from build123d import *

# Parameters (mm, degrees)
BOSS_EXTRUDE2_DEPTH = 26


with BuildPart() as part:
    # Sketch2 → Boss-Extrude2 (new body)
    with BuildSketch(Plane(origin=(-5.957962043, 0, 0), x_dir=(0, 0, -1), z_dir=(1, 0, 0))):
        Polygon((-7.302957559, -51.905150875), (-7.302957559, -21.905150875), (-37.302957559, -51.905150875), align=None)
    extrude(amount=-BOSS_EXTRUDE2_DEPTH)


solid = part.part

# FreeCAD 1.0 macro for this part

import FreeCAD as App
import Part
import Sketcher

V = App.Vector
Q = App.Units.Quantity


def add_polygon(sketch, points):
    """Adds a closed chain of lines whose ends are joined by coincident constraints."""
    first, n = sketch.GeometryCount, len(points)
    for a, b in zip(points, points[1:] + points[:1]):
        sketch.addGeometry(Part.LineSegment(App.Vector(*a, 0), App.Vector(*b, 0)), False)
    for i in range(n):
        sketch.addConstraint(Sketcher.Constraint("Coincident", first + i, 2, first + (i + 1) % n, 1))

doc = App.newDocument("Part")
body = doc.addObject("PartDesign::Body", "Body")

# Sketch on YZ plane
sketch1 = body.newObject("Sketcher::SketchObject", "Sketch")
sketch1.AttachmentSupport = (doc.getObject("YZ_Plane"), [""])
sketch1.MapMode = "FlatFace"
sketch1.AttachmentOffset = App.Placement(V(0, 0, -5.957962), App.Rotation())
add_polygon(sketch1, [(-52, 7), (-22, 7), (-52, 37)])  # lines 0-2
sketch1.addConstraint(Sketcher.Constraint("Horizontal", 0))
sketch1.addConstraint(Sketcher.Constraint("Vertical", 2))
sketch1.addConstraint(Sketcher.Constraint("Equal", 0, 2))
sketch1.addConstraint(Sketcher.Constraint("DistanceX", 0, 1, 0, 2, Q("30 mm")))
sketch1.addConstraint(Sketcher.Constraint("DistanceX", 0, 2, -1, 1, Q("21.905151 mm")))
sketch1.addConstraint(Sketcher.Constraint("DistanceY", -1, 1, 0, 2, Q("7.302958 mm")))
pad1 = body.newObject("PartDesign::Pad", "Pad")
pad1.Profile = sketch1
pad1.Length = 26
pad1.Reversed = True

doc.recompute()
